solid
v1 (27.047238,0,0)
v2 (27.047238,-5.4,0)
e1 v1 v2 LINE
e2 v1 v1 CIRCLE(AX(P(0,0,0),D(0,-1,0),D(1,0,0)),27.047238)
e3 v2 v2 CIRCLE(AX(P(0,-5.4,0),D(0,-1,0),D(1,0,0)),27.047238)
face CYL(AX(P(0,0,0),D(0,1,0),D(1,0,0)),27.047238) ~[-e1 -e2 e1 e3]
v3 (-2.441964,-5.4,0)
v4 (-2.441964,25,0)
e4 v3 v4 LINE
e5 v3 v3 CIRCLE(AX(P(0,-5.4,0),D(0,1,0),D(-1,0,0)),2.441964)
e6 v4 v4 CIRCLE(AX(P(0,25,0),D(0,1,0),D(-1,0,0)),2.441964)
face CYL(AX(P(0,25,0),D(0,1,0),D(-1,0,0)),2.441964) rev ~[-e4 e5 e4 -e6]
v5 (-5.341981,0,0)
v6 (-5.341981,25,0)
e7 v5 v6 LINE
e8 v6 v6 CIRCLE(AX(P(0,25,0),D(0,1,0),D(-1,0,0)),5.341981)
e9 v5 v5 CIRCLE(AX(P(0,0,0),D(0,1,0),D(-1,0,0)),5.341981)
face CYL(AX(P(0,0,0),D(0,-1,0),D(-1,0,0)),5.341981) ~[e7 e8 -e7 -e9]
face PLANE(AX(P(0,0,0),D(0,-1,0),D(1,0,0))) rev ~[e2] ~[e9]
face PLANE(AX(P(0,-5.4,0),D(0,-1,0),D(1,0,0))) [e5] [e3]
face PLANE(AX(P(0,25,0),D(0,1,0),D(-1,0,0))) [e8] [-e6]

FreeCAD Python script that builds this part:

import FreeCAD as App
import Part
import Sketcher

doc = App.newDocument("Part")
body = doc.addObject("PartDesign::Body", "Body")

sketch1 = body.newObject("Sketcher::SketchObject", "Sketch")
sketch1.AttachmentSupport = (doc.getObject("XZ_Plane"), [""])
sketch1.MapMode = "FlatFace"
sketch1.addGeometry(Part.Circle(App.Vector(0, 0, 0), App.Vector(0, 0, 1), 27), False)
sketch1.addConstraint(Sketcher.Constraint("Coincident", 0, 3, -1, 1))
sketch1.addConstraint(Sketcher.Constraint("Diameter", 0, 54.094476))
pad1 = body.newObject("PartDesign::Pad", "Pad")
pad1.Profile = sketch1
pad1.Length = 5.4

sketch2 = body.newObject("Sketcher::SketchObject", "Sketch001")
sketch2.AttachmentSupport = (doc.getObject("XZ_Plane"), [""])
sketch2.MapMode = "FlatFace"
sketch2.addGeometry(Part.Circle(App.Vector(0, 0, 0), App.Vector(0, 0, 1), 5), False)
sketch2.addConstraint(Sketcher.Constraint("Coincident", 0, 3, -1, 1))
sketch2.addConstraint(Sketcher.Constraint("Diameter", 0, 10.683962))
pad2 = body.newObject("PartDesign::Pad", "Pad001")
pad2.Profile = sketch2
pad2.Length = 25
pad2.Reversed = True

sketch3 = body.newObject("Sketcher::SketchObject", "Sketch002")
sketch3.AttachmentSupport = (doc.getObject("XZ_Plane"), [""])
sketch3.MapMode = "FlatFace"
sketch3.AttachmentOffset = App.Placement(App.Vector(0, 0, -25), App.Rotation())
sketch3.addGeometry(Part.Circle(App.Vector(0, 0, 0), App.Vector(0, 0, 1), 2.4), False)
sketch3.addConstraint(Sketcher.Constraint("Coincident", 0, 3, -1, 1))
sketch3.addConstraint(Sketcher.Constraint("Diameter", 0, 4.883928))
pocket1 = body.newObject("PartDesign::Pocket", "Pocket")
pocket1.Profile = sketch3
pocket1.Length = 97.6
pocket1.Midplane = True

doc.recompute()
